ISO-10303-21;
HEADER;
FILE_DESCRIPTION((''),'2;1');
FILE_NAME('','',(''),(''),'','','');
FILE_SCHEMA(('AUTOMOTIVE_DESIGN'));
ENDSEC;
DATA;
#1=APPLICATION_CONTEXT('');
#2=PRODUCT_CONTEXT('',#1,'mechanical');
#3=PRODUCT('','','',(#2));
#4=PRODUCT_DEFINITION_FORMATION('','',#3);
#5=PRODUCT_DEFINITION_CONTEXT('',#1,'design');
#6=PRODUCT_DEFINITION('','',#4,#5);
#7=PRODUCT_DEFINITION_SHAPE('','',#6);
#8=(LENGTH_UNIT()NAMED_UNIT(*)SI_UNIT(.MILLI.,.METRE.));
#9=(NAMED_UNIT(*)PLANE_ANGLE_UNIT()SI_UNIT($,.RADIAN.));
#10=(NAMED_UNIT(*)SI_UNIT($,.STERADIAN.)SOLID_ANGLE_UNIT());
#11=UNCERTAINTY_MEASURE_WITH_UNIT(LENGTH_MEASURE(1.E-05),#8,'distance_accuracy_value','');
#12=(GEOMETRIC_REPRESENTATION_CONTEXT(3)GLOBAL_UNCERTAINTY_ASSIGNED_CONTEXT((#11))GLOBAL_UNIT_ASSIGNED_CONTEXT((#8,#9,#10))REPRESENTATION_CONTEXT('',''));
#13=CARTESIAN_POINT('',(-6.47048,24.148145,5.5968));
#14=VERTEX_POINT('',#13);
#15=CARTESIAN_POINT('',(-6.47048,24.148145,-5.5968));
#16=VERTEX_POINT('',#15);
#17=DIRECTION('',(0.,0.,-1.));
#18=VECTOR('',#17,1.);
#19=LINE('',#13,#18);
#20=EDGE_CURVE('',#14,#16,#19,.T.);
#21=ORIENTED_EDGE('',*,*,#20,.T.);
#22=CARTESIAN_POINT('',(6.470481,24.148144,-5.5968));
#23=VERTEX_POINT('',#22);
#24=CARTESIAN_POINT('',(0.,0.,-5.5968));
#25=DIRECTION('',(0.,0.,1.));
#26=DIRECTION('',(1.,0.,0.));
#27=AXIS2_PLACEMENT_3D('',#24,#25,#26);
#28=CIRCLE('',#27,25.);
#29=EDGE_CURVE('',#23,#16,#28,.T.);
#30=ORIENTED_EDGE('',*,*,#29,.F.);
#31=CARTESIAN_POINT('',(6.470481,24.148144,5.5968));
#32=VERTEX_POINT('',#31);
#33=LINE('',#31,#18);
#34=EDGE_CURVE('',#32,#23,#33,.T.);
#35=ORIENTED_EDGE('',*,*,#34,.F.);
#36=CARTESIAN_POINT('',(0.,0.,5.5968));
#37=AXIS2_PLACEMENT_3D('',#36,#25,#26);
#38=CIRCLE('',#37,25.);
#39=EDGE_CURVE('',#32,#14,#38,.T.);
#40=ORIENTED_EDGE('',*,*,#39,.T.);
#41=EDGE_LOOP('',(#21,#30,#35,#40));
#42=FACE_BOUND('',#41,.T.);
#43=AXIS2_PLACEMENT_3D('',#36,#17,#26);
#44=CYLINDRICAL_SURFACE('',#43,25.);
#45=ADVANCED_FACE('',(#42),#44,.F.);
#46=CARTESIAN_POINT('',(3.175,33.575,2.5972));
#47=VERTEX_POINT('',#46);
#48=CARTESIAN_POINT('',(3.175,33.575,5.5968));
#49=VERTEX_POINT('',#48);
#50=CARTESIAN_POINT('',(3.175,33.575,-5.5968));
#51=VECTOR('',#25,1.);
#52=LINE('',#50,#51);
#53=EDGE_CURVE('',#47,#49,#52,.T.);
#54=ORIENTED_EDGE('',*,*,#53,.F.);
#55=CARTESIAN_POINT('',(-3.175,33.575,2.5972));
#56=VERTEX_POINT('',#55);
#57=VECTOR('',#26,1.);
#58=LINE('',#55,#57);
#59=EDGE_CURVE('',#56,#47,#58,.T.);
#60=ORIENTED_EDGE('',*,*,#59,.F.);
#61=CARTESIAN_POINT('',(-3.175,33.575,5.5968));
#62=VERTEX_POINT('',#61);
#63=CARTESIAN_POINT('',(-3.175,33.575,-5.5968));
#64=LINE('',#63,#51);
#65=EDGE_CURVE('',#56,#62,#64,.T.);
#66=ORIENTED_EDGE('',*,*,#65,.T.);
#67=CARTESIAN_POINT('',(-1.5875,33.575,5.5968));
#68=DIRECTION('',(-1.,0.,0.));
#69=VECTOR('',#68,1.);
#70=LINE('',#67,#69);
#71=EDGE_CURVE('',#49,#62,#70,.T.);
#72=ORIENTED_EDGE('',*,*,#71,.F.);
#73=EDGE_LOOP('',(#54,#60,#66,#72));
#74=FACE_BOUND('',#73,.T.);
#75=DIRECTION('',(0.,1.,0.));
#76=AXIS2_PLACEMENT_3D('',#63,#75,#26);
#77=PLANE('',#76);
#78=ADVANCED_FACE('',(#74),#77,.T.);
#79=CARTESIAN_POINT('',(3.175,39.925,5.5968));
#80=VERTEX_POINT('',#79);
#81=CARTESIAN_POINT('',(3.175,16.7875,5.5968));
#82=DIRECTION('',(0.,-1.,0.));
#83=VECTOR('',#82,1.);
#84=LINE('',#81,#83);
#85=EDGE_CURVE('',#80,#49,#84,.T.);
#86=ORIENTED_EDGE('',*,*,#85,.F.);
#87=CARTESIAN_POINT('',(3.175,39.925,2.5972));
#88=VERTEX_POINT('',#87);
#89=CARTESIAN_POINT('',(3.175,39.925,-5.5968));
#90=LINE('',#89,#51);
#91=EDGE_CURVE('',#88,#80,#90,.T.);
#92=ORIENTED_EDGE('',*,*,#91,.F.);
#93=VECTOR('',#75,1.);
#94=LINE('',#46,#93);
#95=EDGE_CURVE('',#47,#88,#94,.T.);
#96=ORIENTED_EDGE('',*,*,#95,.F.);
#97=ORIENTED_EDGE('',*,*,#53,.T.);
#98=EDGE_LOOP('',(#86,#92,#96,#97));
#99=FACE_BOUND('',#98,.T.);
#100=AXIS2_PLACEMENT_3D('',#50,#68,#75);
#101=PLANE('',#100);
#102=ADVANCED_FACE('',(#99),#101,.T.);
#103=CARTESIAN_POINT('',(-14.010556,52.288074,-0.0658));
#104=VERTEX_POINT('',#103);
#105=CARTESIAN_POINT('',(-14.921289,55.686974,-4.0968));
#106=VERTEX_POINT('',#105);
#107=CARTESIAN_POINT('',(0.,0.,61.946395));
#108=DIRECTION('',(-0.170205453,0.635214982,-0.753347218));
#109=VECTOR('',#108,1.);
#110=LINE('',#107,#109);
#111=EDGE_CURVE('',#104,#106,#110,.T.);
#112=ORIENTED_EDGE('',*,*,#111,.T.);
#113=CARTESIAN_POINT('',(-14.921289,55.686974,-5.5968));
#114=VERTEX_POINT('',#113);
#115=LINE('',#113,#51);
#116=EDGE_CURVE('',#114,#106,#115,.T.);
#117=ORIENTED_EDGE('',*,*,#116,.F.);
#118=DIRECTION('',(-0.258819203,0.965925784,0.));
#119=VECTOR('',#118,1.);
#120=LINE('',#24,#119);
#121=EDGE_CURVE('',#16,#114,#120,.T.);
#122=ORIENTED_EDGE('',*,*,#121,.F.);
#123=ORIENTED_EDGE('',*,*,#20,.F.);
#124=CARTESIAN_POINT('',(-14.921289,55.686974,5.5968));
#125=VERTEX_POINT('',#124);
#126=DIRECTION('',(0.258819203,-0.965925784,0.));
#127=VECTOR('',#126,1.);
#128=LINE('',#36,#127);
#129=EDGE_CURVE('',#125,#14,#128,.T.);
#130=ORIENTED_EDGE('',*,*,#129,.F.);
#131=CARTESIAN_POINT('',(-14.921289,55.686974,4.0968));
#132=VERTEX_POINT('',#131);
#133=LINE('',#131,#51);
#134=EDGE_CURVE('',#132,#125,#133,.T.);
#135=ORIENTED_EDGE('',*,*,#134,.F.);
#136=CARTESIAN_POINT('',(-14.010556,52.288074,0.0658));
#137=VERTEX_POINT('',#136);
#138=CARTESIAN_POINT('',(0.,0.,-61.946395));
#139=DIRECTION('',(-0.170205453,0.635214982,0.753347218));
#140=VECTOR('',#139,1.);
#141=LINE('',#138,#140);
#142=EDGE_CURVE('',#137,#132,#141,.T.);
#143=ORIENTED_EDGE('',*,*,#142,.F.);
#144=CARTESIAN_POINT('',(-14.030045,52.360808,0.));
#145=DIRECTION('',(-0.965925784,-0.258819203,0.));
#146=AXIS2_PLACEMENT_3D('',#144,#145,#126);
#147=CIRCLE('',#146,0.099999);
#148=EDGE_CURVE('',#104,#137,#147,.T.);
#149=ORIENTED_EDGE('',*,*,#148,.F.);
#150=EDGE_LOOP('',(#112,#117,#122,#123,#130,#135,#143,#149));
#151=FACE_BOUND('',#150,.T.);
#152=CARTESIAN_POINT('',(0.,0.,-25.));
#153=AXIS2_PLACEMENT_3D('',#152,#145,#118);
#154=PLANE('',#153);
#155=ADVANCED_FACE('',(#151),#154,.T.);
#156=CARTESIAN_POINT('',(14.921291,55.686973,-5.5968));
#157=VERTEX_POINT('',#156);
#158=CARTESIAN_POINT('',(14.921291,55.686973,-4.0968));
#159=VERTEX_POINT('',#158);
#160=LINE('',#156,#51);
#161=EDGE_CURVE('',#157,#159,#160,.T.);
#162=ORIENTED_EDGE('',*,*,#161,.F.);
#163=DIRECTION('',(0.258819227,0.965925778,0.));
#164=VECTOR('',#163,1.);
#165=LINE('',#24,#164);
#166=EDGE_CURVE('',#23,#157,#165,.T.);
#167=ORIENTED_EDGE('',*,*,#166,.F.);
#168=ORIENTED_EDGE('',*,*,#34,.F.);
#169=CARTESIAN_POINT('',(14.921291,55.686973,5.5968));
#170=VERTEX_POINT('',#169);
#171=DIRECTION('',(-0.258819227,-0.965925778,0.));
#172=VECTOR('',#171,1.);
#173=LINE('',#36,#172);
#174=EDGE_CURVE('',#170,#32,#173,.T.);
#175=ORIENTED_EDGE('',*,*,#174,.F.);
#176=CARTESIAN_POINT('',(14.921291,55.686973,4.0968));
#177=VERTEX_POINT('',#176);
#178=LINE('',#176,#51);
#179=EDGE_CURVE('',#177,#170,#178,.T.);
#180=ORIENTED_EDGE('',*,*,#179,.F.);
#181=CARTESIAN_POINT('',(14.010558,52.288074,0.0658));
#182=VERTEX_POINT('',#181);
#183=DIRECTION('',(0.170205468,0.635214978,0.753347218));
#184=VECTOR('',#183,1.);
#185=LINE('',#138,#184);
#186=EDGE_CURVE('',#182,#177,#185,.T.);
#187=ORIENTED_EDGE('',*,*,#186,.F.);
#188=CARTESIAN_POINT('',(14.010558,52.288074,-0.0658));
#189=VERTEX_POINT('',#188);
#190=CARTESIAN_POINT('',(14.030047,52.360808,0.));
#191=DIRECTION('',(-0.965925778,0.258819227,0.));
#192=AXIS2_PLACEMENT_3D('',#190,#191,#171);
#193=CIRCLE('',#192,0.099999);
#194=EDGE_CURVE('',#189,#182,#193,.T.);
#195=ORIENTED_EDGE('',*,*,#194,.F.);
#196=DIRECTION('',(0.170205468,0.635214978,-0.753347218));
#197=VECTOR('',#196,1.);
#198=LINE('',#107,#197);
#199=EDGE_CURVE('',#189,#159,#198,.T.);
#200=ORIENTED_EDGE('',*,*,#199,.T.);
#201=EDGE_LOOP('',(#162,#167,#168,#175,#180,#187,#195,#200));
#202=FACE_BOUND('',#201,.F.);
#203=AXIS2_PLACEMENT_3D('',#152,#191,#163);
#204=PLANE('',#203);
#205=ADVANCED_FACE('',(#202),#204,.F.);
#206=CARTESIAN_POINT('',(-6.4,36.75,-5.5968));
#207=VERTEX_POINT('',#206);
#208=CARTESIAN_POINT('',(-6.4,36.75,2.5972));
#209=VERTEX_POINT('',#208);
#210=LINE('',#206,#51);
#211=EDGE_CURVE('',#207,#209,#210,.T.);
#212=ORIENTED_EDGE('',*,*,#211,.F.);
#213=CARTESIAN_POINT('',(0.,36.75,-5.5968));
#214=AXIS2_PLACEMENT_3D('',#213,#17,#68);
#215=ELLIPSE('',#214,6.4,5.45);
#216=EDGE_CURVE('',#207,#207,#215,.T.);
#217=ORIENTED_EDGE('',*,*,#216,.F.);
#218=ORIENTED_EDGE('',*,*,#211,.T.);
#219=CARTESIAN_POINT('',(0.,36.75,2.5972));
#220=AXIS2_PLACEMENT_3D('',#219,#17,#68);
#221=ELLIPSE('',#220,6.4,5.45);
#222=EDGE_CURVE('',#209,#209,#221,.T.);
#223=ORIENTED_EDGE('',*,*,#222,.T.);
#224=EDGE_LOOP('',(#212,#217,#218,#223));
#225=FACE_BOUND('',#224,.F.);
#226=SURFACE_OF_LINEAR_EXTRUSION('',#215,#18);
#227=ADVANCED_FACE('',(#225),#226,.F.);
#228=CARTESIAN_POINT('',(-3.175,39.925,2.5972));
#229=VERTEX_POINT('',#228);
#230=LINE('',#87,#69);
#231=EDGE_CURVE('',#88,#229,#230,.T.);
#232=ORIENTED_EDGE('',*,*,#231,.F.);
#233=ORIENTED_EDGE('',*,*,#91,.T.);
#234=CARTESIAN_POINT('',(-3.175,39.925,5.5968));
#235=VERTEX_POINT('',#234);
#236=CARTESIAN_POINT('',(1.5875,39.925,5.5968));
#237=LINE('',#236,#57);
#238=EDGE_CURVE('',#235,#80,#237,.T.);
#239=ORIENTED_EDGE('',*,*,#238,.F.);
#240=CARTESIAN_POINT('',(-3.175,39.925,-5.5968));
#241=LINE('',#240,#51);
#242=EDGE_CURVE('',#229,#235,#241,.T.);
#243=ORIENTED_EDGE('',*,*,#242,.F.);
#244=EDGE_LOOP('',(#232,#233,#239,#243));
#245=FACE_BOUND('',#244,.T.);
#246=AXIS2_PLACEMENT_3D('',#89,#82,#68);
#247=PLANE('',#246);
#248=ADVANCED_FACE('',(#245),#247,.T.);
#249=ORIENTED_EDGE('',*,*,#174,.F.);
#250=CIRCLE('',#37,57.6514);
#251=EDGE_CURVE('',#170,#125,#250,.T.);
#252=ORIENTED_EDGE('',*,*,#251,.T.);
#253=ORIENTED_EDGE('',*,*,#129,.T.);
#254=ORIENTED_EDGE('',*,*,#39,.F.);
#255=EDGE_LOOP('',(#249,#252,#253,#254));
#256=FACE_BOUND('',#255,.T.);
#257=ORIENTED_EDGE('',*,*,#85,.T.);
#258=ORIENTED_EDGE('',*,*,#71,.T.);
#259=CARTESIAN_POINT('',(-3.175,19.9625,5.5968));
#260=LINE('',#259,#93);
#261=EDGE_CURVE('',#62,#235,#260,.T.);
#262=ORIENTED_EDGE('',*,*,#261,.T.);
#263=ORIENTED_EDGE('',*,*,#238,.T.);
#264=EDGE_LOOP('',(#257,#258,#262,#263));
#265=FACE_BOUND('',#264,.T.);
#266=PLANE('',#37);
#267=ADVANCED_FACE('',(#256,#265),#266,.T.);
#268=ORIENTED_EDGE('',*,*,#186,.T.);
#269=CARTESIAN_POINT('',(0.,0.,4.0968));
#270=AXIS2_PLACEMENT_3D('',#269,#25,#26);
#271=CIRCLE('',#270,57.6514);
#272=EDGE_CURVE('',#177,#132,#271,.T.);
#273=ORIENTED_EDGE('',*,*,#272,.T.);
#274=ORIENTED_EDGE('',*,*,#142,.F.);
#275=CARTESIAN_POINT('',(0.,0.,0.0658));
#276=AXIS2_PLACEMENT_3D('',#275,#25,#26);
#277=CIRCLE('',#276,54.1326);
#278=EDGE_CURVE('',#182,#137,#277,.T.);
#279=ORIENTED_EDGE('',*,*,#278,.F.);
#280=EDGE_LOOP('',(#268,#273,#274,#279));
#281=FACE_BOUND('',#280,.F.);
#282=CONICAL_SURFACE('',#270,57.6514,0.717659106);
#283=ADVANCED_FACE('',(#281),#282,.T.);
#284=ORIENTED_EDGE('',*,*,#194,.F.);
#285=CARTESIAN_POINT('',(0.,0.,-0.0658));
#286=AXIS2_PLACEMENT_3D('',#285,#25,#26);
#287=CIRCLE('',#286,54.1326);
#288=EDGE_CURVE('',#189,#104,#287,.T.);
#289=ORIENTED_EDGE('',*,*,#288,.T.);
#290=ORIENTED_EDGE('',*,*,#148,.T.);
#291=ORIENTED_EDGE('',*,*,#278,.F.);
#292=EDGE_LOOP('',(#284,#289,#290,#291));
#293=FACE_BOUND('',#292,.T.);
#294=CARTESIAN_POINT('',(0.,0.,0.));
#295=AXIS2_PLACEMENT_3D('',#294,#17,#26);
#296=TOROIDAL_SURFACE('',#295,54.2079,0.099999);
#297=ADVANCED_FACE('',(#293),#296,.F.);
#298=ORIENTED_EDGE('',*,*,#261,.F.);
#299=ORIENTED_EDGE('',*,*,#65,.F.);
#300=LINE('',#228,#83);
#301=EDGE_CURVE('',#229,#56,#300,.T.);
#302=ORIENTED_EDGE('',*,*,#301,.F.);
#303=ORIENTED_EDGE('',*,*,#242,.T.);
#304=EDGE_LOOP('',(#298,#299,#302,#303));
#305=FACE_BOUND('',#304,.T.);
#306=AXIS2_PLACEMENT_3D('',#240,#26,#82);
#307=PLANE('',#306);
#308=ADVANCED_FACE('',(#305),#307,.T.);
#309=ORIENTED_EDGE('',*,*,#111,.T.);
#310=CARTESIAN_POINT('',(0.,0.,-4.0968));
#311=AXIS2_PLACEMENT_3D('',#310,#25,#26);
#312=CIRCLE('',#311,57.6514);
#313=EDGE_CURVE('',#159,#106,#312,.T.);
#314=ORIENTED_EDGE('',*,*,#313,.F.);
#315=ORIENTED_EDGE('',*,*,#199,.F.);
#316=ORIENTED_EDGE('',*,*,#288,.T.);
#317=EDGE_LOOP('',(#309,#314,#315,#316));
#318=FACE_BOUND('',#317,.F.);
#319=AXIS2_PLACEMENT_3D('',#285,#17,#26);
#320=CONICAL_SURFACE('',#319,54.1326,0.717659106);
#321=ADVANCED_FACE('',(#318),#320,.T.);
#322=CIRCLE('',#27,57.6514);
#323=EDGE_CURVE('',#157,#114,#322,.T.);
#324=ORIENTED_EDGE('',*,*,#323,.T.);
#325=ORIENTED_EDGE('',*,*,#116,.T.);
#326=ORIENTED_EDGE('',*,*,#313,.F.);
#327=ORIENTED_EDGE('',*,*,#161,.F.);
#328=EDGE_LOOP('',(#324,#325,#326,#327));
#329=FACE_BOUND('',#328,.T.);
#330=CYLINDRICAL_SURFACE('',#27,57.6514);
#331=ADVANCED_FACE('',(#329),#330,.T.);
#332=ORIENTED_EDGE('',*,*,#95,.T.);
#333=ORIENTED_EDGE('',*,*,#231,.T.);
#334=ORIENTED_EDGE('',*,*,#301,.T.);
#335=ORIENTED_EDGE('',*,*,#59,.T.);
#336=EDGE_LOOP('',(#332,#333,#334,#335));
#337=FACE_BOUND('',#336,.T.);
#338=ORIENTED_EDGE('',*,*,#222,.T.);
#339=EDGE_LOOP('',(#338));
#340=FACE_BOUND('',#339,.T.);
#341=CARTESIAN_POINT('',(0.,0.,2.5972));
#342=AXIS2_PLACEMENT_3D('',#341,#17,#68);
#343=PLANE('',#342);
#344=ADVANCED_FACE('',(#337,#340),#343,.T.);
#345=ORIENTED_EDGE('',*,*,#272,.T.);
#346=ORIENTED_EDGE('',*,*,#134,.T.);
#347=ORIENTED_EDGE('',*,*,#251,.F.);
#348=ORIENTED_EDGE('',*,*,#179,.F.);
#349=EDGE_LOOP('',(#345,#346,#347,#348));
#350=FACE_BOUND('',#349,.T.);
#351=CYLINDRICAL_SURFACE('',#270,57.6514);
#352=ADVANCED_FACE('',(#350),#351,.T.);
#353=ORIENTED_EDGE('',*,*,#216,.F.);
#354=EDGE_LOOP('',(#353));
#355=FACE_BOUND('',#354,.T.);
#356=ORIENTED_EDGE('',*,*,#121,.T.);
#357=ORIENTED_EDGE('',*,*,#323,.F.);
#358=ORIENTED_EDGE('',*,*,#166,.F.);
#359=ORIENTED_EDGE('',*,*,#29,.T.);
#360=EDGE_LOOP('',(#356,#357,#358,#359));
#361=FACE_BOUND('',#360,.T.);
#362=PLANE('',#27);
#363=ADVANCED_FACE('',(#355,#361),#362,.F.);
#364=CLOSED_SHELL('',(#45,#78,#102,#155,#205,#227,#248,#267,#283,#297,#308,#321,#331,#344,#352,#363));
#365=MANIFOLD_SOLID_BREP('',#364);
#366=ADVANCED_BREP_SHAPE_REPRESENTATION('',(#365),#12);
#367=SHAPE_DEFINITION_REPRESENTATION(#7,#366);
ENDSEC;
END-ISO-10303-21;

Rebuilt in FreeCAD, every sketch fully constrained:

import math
import FreeCAD as App
import Part
import Sketcher
from FreeCAD import Vector
Q = App.Units.Quantity

doc = App.newDocument("Part")
body = doc.addObject("PartDesign::Body", "Body")

# Sketch on XZ plane
sketch1 = body.newObject("Sketcher::SketchObject", "Sketch")
sketch1.AttachmentSupport = (doc.getObject("XZ_Plane"), [""])
sketch1.MapMode = "FlatFace"
sketch1.addGeometry([
    Part.ArcOfCircle(Part.Circle(Vector(54.2079, 0, 0), Vector(0, 0, 1), 0.099999), math.radians(138.851805), math.radians(221.148195)),  # 0
    Part.LineSegment(Vector(54.1326, -0.0658, 0), Vector(57.6514, -4.0968, 0)),  # 1
    Part.LineSegment(Vector(57.6514, -4.0968, 0), Vector(57.6514, -5.5968, 0)),  # 2
    Part.LineSegment(Vector(57.6514, -5.5968, 0), Vector(25, -5.5968, 0)),  # 3
    Part.LineSegment(Vector(25, -5.5968, 0), Vector(25, 5.5968, 0)),  # 4
    Part.LineSegment(Vector(25, 5.5968, 0), Vector(57.6514, 5.5968, 0)),  # 5
    Part.LineSegment(Vector(57.6514, 5.5968, 0), Vector(57.6514, 4.0968, 0)),  # 6
    Part.LineSegment(Vector(57.6514, 4.0968, 0), Vector(54.1326, 0.0658, 0)),  # 7
], False)
sketch1.addConstraint([
    Sketcher.Constraint("Coincident", 0, 2, 1, 1),
    Sketcher.Constraint("Coincident", 1, 2, 2, 1),
    Sketcher.Constraint("Coincident", 2, 2, 3, 1),
    Sketcher.Constraint("Coincident", 3, 2, 4, 1),
    Sketcher.Constraint("Coincident", 4, 2, 5, 1),
    Sketcher.Constraint("Coincident", 5, 2, 6, 1),
    Sketcher.Constraint("Coincident", 6, 2, 7, 1),
    Sketcher.Constraint("Coincident", 7, 2, 0, 1),
    Sketcher.Constraint("Vertical", 2),
    Sketcher.Constraint("Horizontal", 3),
    Sketcher.Constraint("Vertical", 4),
    Sketcher.Constraint("Horizontal", 5),
    Sketcher.Constraint("Vertical", 6),
    Sketcher.Constraint("Symmetric", 2, 2, 5, 2, -1),
    Sketcher.Constraint("Symmetric", 0, 2, 7, 2, -1),
    Sketcher.Constraint("Equal", 2, 6),
    Sketcher.Constraint("Radius", 0, 0.1),
    Sketcher.Constraint("DistanceY", 2, 2, 2, 1, 1.5),
    Sketcher.Constraint("DistanceX", -1, 1, 3, 2, 25.0),
    Sketcher.Constraint("DistanceY", 4, 1, 4, 2, 11.1936),
    Sketcher.Constraint("Angle", 1, Q("-48.8812 deg")),
    Sketcher.Constraint("DistanceX", 3, 2, 3, 1, 32.6514),
    Sketcher.Constraint("DistanceY", 1, 2, 0, 2, 4.031),
])
revolution = body.newObject("PartDesign::Revolution", "Revolution")
revolution.Profile = sketch1
revolution.ReferenceAxis = (sketch1, ["V_Axis"])
revolution.Angle = 360

# Sketch on XY plane
sketch2 = body.newObject("Sketcher::SketchObject", "Sketch001")
sketch2.AttachmentSupport = (doc.getObject("XY_Plane"), [""])
sketch2.MapMode = "FlatFace"
sketch2.AttachmentOffset = App.Placement(Vector(0, 0, -5.5968), App.Rotation())
sketch2.addGeometry([
    Part.LineSegment(Vector(-3.175, 39.925, 0), Vector(3.175, 39.925, 0)),
    Part.LineSegment(Vector(3.175, 39.925, 0), Vector(3.175, 33.575, 0)),
    Part.LineSegment(Vector(3.175, 33.575, 0), Vector(-3.175, 33.575, 0)),
    Part.LineSegment(Vector(-3.175, 33.575, 0), Vector(-3.175, 39.925, 0)),
], False)
sketch2.addConstraint([
    Sketcher.Constraint("Coincident", 0, 2, 1, 1),
    Sketcher.Constraint("Coincident", 1, 2, 2, 1),
    Sketcher.Constraint("Coincident", 2, 2, 3, 1),
    Sketcher.Constraint("Coincident", 3, 2, 0, 1),
    Sketcher.Constraint("Horizontal", 0),
    Sketcher.Constraint("Vertical", 1),
    Sketcher.Constraint("Horizontal", 2),
    Sketcher.Constraint("Vertical", 3),
    Sketcher.Constraint("Equal", 2, 1),
    Sketcher.Constraint("DistanceX", 0, 1, 0, 2, 6.35),
    Sketcher.Constraint("DistanceX", -1, 1, 0, 2, 3.175),
    Sketcher.Constraint("DistanceY", -1, 1, 0, 2, 39.925),
])
pocket1 = body.newObject("PartDesign::Pocket", "Pocket")
pocket1.Profile = sketch2
pocket1.Length = 11.194
pocket1.Reversed = True

# Sketch on XY plane
sketch3 = body.newObject("Sketcher::SketchObject", "Sketch002")
sketch3.AttachmentSupport = (doc.getObject("XY_Plane"), [""])
sketch3.MapMode = "FlatFace"
sketch3.AttachmentOffset = App.Placement(Vector(0, 0, -5.5968), App.Rotation())
sketch3.addGeometry(Part.Ellipse(Vector(-6.4, 36.75, 0), Vector(0, 31.3, 0), Vector(0, 36.75, 0)), False)
sketch3.addConstraint(Sketcher.Constraint("Block", 0))
pocket2 = body.newObject("PartDesign::Pocket", "Pocket001")
pocket2.Profile = sketch3
pocket2.Length = 8.194
pocket2.Reversed = True
doc.recompute()

polarpattern = body.newObject("PartDesign::PolarPattern", "PolarPattern")
polarpattern.Originals = [pocket1, pocket2]
polarpattern.Axis = (doc.getObject("Z_Axis"), [""])
polarpattern.Angle = 360
polarpattern.Occurrences = 6
body.Tip = polarpattern

# Sketch on XY plane
sketch4 = body.newObject("Sketcher::SketchObject", "Sketch003")
sketch4.AttachmentSupport = (doc.getObject("XY_Plane"), [""])
sketch4.MapMode = "FlatFace"
sketch4.AttachmentOffset = App.Placement(Vector(0, 0, -25), App.Rotation())
sketch4.addGeometry([
    Part.LineSegment(Vector(24.843876, 92.718539, 0), Vector(0, 0, 0)),
    Part.LineSegment(Vector(0, 0, 0), Vector(-24.843874, 92.71854, 0)),
    Part.ArcOfCircle(Part.Circle(Vector(0, 0, 0), Vector(0, 0, 1), 95.9893), math.radians(105.000009), math.radians(434.999989)),
], False)
sketch4.addConstraint([
    Sketcher.Constraint("Coincident", 0, 2, 1, 1),
    Sketcher.Constraint("Coincident", 1, 2, 2, 1),
    Sketcher.Constraint("Coincident", 2, 2, 0, 1),
    Sketcher.Constraint("Coincident", 2, 3, -1, 1),
    Sketcher.Constraint("Coincident", 0, 2, -1, 1),
    Sketcher.Constraint("Horizontal", 1, 2, 2, 2),
    Sketcher.Constraint("Angle", 0, Q("-105 deg")),
    Sketcher.Constraint("Radius", 2, 95.9893),
])
pocket3 = body.newObject("PartDesign::Pocket", "Pocket002")
pocket3.Profile = sketch4
pocket3.Type = "ThroughAll"
pocket3.Reversed = True

doc.recompute()
